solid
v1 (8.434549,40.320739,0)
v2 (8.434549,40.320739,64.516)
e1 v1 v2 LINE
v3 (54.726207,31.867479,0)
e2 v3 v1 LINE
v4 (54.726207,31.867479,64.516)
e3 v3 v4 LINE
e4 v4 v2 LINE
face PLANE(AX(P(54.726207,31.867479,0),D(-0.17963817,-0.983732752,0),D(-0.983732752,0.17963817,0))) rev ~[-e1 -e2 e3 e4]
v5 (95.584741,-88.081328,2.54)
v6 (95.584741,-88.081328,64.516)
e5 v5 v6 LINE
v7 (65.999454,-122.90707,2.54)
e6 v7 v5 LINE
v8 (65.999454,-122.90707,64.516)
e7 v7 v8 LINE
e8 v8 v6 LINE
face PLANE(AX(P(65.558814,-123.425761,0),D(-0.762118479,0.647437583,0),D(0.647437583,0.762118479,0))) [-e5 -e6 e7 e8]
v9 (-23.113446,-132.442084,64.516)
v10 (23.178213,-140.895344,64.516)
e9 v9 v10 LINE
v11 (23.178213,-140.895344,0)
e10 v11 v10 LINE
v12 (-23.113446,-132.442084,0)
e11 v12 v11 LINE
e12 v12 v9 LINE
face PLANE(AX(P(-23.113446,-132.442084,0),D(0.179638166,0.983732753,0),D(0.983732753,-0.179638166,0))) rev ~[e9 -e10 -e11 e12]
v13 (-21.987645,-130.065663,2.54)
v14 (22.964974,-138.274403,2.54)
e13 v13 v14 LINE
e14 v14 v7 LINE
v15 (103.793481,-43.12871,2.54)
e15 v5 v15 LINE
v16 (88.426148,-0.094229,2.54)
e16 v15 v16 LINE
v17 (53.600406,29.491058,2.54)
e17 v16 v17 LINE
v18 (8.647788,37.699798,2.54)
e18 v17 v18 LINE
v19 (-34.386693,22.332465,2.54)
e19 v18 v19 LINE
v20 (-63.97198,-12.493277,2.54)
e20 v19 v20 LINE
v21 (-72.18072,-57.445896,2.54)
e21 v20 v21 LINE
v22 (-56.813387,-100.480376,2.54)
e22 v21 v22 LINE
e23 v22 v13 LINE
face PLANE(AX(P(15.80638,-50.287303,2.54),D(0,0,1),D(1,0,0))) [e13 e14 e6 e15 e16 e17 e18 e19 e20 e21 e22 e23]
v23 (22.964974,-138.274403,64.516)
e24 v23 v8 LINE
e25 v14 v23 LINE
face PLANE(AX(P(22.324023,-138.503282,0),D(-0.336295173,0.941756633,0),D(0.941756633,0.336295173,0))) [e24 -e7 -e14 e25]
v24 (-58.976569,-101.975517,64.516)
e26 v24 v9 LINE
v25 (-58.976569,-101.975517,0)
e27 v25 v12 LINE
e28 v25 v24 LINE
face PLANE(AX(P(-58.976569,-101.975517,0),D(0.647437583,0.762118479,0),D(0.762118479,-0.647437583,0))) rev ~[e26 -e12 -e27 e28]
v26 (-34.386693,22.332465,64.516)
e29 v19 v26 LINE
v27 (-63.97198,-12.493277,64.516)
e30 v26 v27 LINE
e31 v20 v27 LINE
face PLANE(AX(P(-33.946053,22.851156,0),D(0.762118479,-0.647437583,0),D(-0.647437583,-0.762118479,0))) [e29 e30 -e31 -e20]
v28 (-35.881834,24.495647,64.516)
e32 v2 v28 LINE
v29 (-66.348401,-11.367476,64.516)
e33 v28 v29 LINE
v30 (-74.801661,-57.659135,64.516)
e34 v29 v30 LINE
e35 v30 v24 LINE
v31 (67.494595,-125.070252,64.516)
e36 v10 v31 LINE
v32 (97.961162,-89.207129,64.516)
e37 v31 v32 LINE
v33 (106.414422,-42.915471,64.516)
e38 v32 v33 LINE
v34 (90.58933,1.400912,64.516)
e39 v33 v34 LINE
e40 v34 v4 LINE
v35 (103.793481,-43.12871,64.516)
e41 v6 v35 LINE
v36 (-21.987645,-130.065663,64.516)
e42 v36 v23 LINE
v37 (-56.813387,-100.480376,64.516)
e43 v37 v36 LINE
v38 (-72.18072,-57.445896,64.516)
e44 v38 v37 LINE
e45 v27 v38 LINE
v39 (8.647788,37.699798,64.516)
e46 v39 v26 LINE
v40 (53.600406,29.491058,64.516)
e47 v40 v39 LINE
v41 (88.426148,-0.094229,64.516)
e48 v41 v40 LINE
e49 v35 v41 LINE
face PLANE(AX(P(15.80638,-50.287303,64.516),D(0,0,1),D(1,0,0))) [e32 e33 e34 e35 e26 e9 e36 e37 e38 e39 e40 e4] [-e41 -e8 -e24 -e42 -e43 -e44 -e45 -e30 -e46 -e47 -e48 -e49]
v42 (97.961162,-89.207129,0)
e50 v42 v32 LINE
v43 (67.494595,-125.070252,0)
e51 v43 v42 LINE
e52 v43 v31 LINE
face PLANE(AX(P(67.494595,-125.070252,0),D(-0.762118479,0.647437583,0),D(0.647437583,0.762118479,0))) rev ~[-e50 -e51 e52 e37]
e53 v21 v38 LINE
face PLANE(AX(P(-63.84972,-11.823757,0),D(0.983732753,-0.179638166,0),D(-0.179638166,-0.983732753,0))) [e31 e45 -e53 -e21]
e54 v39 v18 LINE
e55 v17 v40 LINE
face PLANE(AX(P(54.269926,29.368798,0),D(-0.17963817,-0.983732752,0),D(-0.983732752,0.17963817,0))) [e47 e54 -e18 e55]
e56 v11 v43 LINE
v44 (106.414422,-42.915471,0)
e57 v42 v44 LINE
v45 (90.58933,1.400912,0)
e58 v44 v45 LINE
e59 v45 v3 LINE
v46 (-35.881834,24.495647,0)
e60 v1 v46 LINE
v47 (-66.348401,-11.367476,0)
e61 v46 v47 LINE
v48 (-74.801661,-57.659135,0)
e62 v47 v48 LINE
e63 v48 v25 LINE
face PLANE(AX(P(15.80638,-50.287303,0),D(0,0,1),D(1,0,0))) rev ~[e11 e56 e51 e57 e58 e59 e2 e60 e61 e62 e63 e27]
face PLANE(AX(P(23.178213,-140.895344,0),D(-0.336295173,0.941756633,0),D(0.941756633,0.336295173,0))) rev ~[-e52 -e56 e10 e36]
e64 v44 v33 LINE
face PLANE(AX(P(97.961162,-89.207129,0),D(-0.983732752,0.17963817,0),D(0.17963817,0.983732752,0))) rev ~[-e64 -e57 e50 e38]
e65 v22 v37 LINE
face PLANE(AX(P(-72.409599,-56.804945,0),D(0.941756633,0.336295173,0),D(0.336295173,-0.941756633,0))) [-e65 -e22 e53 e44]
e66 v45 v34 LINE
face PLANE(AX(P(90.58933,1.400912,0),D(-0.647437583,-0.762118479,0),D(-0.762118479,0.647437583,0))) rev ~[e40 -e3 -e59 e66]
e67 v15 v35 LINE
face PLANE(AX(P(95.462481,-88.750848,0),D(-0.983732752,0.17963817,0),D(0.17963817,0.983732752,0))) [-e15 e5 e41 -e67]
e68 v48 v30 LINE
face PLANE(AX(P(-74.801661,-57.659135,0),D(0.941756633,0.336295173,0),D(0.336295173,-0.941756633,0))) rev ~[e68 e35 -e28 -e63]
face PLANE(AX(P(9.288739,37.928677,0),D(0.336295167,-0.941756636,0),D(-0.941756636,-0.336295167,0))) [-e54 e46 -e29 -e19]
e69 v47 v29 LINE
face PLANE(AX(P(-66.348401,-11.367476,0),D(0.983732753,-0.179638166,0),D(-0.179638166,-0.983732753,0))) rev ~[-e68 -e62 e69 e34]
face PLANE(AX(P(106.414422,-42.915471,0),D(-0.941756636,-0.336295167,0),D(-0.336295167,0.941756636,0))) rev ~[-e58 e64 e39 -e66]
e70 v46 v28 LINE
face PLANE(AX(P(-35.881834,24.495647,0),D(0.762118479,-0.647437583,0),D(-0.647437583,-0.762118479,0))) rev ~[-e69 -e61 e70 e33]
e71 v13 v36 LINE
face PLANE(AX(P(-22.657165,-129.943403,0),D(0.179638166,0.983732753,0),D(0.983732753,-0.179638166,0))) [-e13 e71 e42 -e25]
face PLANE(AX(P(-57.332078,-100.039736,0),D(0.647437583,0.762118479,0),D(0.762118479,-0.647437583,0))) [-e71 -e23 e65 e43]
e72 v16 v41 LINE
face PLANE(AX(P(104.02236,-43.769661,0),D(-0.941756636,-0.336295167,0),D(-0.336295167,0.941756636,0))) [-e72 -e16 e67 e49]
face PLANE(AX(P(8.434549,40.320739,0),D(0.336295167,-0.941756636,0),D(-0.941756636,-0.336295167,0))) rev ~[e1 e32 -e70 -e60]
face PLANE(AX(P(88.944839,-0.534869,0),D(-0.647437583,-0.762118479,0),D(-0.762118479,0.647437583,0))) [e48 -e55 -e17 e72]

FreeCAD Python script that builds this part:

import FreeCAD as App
import Part
import Sketcher
Q = App.Units.Quantity


def faces_at(feature, points):
    """Names of the faces that lie closest to the given points."""
    faces = feature.Shape.Faces
    near = lambda p: min(range(len(faces)), key=lambda i: faces[i].distToShape(Part.Vertex(*p))[0])
    return sorted({f"Face{near(p) + 1}" for p in points})

doc = App.newDocument("Part")
body = doc.addObject("PartDesign::Body", "Body")

sketch1 = doc.addObject("Sketcher::SketchObject", "Sketch")
body.addObject(sketch1)
sketch1.AttachmentSupport = (doc.XY_Plane, [""])
sketch1.MapMode = "FlatFace"
sketch1.addGeometry([
    Part.LineSegment(App.Vector(8.434549, 40.320739, 0), App.Vector(-35.881834, 24.495647, 0)),
    Part.LineSegment(App.Vector(-35.881834, 24.495647, 0), App.Vector(-66.348401, -11.367476, 0)),
    Part.LineSegment(App.Vector(-66.348401, -11.367476, 0), App.Vector(-74.801661, -57.659135, 0)),
    Part.LineSegment(App.Vector(-74.801661, -57.659135, 0), App.Vector(-58.976569, -101.975517, 0)),
    Part.LineSegment(App.Vector(-58.976569, -101.975517, 0), App.Vector(-23.113446, -132.442084, 0)),
    Part.LineSegment(App.Vector(-23.113446, -132.442084, 0), App.Vector(23.178213, -140.895344, 0)),
    Part.LineSegment(App.Vector(23.178213, -140.895344, 0), App.Vector(67.494595, -125.070252, 0)),
    Part.LineSegment(App.Vector(67.494595, -125.070252, 0), App.Vector(97.961162, -89.207129, 0)),
    Part.LineSegment(App.Vector(97.961162, -89.207129, 0), App.Vector(106.414422, -42.915471, 0)),
    Part.LineSegment(App.Vector(106.414422, -42.915471, 0), App.Vector(90.58933, 1.400912, 0)),
    Part.LineSegment(App.Vector(90.58933, 1.400912, 0), App.Vector(54.726207, 31.867479, 0)),
    Part.LineSegment(App.Vector(54.726207, 31.867479, 0), App.Vector(8.434549, 40.320739, 0)),
], False)
sketch1.addConstraint([
    Sketcher.Constraint("Coincident", 0, 2, 1, 1),
    Sketcher.Constraint("Coincident", 1, 2, 2, 1),
    Sketcher.Constraint("Coincident", 2, 2, 3, 1),
    Sketcher.Constraint("Coincident", 3, 2, 4, 1),
    Sketcher.Constraint("Coincident", 4, 2, 5, 1),
    Sketcher.Constraint("Coincident", 5, 2, 6, 1),
    Sketcher.Constraint("Coincident", 6, 2, 7, 1),
    Sketcher.Constraint("Coincident", 7, 2, 8, 1),
    Sketcher.Constraint("Coincident", 8, 2, 9, 1),
    Sketcher.Constraint("Coincident", 9, 2, 10, 1),
    Sketcher.Constraint("Coincident", 10, 2, 11, 1),
    Sketcher.Constraint("Coincident", 11, 2, 0, 1),
    Sketcher.Constraint("DistanceX", 1, 2, -1, 1, Q("66.348401 mm")),
    Sketcher.Constraint("Distance", 0, Q("47.05715 mm")),
    Sketcher.Constraint("Distance", 1, Q("47.057149 mm")),
    Sketcher.Constraint("Distance", 2, Q("47.057149 mm")),
    Sketcher.Constraint("Distance", 3, Q("47.057149 mm")),
    Sketcher.Constraint("Distance", 4, Q("47.057149 mm")),
    Sketcher.Constraint("Distance", 5, Q("47.057149 mm")),
    Sketcher.Constraint("Distance", 6, Q("47.057149 mm")),
    Sketcher.Constraint("Distance", 7, Q("47.057149 mm")),
    Sketcher.Constraint("Distance", 8, Q("47.057148 mm")),
    Sketcher.Constraint("Distance", 9, Q("47.05715 mm")),
    Sketcher.Constraint("Distance", 10, Q("47.057149 mm")),
    Sketcher.Constraint("Distance", 11, Q("47.057148 mm")),
    Sketcher.Constraint("DistanceX", 2, 2, -1, 1, Q("74.801661 mm")),
    Sketcher.Constraint("DistanceX", 3, 2, -1, 1, Q("58.976569 mm")),
    Sketcher.Constraint("DistanceY", 6, 2, -1, 1, Q("125.070252 mm")),
    Sketcher.Constraint("DistanceX", -1, 1, 7, 2, Q("97.961162 mm")),
    Sketcher.Constraint("DistanceY", 7, 2, -1, 1, Q("89.207129 mm")),
    Sketcher.Constraint("DistanceX", -1, 1, 8, 2, Q("106.414422 mm")),
    Sketcher.Constraint("DistanceX", -1, 1, 9, 2, Q("90.58933 mm")),
    Sketcher.Constraint("DistanceY", -1, 1, 10, 2, Q("31.867479 mm")),
    Sketcher.Constraint("DistanceX", -1, 1, 11, 2, Q("8.434549 mm")),
    Sketcher.Constraint("DistanceY", 2, 2, 0, 2, Q("82.154782 mm")),
    Sketcher.Constraint("DistanceY", 4, 2, 2, 2, Q("74.782949 mm")),
])
pad1 = doc.addObject("PartDesign::Pad", "Pad")
body.addObject(pad1)
pad1.Profile = sketch1
pad1.Length = Q("2.54 in")
doc.recompute()

thickness = doc.addObject("PartDesign::Thickness", "Thickness")
body.addObject(thickness)
thickness.Base = (pad1, faces_at(pad1, [(15.806, -50.287, 64.516)]))
thickness.Value = Q("0.1 in")
thickness.Reversed = True
thickness.Join = "Arc"

doc.recompute()
